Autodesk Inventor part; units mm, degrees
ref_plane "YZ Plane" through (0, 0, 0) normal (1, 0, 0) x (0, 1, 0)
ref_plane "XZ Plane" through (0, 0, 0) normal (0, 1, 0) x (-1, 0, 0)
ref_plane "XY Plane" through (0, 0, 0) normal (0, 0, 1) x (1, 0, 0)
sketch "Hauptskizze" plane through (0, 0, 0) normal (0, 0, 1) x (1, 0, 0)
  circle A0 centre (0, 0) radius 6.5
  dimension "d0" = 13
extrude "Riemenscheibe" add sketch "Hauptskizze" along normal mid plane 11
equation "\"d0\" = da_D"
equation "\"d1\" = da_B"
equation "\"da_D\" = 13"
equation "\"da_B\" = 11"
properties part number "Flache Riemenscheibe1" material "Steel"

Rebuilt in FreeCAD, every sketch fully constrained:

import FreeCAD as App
import Part
import Sketcher

V = App.Vector
Q = App.Units.Quantity

doc = App.newDocument("Part")
params = doc.addObject("Spreadsheet::Sheet", "Params")
for row, (alias, value) in enumerate([
    ("sketch1_diameter", "13 mm"),
    ("pad1_length", "11 mm"),
], start=1):
    params.set(f"A{row}", alias)
    params.set(f"B{row}", "=" + value)
    params.setAlias(f"B{row}", alias)

body = doc.addObject("PartDesign::Body", "Body")

# Sketch on XY plane
sketch1 = body.newObject("Sketcher::SketchObject", "Sketch")
sketch1.AttachmentSupport = (doc.getObject("XY_Plane"), [""])
sketch1.MapMode = "FlatFace"
sketch1.addGeometry(Part.Circle(V(0, 0, 0), V(0, 0, 1), 6), False)
sketch1.addConstraint([
    Sketcher.Constraint("Coincident", 0, 3, -1, 1),
    Sketcher.Constraint("Diameter", 0, Q("13 mm")),
])
sketch1.setExpression("Constraints[1]", "Params.sketch1_diameter")
pad1 = body.newObject("PartDesign::Pad", "Pad")
pad1.Profile = sketch1
pad1.setExpression("Length", "Params.pad1_length")
pad1.Midplane = True

doc.recompute()
